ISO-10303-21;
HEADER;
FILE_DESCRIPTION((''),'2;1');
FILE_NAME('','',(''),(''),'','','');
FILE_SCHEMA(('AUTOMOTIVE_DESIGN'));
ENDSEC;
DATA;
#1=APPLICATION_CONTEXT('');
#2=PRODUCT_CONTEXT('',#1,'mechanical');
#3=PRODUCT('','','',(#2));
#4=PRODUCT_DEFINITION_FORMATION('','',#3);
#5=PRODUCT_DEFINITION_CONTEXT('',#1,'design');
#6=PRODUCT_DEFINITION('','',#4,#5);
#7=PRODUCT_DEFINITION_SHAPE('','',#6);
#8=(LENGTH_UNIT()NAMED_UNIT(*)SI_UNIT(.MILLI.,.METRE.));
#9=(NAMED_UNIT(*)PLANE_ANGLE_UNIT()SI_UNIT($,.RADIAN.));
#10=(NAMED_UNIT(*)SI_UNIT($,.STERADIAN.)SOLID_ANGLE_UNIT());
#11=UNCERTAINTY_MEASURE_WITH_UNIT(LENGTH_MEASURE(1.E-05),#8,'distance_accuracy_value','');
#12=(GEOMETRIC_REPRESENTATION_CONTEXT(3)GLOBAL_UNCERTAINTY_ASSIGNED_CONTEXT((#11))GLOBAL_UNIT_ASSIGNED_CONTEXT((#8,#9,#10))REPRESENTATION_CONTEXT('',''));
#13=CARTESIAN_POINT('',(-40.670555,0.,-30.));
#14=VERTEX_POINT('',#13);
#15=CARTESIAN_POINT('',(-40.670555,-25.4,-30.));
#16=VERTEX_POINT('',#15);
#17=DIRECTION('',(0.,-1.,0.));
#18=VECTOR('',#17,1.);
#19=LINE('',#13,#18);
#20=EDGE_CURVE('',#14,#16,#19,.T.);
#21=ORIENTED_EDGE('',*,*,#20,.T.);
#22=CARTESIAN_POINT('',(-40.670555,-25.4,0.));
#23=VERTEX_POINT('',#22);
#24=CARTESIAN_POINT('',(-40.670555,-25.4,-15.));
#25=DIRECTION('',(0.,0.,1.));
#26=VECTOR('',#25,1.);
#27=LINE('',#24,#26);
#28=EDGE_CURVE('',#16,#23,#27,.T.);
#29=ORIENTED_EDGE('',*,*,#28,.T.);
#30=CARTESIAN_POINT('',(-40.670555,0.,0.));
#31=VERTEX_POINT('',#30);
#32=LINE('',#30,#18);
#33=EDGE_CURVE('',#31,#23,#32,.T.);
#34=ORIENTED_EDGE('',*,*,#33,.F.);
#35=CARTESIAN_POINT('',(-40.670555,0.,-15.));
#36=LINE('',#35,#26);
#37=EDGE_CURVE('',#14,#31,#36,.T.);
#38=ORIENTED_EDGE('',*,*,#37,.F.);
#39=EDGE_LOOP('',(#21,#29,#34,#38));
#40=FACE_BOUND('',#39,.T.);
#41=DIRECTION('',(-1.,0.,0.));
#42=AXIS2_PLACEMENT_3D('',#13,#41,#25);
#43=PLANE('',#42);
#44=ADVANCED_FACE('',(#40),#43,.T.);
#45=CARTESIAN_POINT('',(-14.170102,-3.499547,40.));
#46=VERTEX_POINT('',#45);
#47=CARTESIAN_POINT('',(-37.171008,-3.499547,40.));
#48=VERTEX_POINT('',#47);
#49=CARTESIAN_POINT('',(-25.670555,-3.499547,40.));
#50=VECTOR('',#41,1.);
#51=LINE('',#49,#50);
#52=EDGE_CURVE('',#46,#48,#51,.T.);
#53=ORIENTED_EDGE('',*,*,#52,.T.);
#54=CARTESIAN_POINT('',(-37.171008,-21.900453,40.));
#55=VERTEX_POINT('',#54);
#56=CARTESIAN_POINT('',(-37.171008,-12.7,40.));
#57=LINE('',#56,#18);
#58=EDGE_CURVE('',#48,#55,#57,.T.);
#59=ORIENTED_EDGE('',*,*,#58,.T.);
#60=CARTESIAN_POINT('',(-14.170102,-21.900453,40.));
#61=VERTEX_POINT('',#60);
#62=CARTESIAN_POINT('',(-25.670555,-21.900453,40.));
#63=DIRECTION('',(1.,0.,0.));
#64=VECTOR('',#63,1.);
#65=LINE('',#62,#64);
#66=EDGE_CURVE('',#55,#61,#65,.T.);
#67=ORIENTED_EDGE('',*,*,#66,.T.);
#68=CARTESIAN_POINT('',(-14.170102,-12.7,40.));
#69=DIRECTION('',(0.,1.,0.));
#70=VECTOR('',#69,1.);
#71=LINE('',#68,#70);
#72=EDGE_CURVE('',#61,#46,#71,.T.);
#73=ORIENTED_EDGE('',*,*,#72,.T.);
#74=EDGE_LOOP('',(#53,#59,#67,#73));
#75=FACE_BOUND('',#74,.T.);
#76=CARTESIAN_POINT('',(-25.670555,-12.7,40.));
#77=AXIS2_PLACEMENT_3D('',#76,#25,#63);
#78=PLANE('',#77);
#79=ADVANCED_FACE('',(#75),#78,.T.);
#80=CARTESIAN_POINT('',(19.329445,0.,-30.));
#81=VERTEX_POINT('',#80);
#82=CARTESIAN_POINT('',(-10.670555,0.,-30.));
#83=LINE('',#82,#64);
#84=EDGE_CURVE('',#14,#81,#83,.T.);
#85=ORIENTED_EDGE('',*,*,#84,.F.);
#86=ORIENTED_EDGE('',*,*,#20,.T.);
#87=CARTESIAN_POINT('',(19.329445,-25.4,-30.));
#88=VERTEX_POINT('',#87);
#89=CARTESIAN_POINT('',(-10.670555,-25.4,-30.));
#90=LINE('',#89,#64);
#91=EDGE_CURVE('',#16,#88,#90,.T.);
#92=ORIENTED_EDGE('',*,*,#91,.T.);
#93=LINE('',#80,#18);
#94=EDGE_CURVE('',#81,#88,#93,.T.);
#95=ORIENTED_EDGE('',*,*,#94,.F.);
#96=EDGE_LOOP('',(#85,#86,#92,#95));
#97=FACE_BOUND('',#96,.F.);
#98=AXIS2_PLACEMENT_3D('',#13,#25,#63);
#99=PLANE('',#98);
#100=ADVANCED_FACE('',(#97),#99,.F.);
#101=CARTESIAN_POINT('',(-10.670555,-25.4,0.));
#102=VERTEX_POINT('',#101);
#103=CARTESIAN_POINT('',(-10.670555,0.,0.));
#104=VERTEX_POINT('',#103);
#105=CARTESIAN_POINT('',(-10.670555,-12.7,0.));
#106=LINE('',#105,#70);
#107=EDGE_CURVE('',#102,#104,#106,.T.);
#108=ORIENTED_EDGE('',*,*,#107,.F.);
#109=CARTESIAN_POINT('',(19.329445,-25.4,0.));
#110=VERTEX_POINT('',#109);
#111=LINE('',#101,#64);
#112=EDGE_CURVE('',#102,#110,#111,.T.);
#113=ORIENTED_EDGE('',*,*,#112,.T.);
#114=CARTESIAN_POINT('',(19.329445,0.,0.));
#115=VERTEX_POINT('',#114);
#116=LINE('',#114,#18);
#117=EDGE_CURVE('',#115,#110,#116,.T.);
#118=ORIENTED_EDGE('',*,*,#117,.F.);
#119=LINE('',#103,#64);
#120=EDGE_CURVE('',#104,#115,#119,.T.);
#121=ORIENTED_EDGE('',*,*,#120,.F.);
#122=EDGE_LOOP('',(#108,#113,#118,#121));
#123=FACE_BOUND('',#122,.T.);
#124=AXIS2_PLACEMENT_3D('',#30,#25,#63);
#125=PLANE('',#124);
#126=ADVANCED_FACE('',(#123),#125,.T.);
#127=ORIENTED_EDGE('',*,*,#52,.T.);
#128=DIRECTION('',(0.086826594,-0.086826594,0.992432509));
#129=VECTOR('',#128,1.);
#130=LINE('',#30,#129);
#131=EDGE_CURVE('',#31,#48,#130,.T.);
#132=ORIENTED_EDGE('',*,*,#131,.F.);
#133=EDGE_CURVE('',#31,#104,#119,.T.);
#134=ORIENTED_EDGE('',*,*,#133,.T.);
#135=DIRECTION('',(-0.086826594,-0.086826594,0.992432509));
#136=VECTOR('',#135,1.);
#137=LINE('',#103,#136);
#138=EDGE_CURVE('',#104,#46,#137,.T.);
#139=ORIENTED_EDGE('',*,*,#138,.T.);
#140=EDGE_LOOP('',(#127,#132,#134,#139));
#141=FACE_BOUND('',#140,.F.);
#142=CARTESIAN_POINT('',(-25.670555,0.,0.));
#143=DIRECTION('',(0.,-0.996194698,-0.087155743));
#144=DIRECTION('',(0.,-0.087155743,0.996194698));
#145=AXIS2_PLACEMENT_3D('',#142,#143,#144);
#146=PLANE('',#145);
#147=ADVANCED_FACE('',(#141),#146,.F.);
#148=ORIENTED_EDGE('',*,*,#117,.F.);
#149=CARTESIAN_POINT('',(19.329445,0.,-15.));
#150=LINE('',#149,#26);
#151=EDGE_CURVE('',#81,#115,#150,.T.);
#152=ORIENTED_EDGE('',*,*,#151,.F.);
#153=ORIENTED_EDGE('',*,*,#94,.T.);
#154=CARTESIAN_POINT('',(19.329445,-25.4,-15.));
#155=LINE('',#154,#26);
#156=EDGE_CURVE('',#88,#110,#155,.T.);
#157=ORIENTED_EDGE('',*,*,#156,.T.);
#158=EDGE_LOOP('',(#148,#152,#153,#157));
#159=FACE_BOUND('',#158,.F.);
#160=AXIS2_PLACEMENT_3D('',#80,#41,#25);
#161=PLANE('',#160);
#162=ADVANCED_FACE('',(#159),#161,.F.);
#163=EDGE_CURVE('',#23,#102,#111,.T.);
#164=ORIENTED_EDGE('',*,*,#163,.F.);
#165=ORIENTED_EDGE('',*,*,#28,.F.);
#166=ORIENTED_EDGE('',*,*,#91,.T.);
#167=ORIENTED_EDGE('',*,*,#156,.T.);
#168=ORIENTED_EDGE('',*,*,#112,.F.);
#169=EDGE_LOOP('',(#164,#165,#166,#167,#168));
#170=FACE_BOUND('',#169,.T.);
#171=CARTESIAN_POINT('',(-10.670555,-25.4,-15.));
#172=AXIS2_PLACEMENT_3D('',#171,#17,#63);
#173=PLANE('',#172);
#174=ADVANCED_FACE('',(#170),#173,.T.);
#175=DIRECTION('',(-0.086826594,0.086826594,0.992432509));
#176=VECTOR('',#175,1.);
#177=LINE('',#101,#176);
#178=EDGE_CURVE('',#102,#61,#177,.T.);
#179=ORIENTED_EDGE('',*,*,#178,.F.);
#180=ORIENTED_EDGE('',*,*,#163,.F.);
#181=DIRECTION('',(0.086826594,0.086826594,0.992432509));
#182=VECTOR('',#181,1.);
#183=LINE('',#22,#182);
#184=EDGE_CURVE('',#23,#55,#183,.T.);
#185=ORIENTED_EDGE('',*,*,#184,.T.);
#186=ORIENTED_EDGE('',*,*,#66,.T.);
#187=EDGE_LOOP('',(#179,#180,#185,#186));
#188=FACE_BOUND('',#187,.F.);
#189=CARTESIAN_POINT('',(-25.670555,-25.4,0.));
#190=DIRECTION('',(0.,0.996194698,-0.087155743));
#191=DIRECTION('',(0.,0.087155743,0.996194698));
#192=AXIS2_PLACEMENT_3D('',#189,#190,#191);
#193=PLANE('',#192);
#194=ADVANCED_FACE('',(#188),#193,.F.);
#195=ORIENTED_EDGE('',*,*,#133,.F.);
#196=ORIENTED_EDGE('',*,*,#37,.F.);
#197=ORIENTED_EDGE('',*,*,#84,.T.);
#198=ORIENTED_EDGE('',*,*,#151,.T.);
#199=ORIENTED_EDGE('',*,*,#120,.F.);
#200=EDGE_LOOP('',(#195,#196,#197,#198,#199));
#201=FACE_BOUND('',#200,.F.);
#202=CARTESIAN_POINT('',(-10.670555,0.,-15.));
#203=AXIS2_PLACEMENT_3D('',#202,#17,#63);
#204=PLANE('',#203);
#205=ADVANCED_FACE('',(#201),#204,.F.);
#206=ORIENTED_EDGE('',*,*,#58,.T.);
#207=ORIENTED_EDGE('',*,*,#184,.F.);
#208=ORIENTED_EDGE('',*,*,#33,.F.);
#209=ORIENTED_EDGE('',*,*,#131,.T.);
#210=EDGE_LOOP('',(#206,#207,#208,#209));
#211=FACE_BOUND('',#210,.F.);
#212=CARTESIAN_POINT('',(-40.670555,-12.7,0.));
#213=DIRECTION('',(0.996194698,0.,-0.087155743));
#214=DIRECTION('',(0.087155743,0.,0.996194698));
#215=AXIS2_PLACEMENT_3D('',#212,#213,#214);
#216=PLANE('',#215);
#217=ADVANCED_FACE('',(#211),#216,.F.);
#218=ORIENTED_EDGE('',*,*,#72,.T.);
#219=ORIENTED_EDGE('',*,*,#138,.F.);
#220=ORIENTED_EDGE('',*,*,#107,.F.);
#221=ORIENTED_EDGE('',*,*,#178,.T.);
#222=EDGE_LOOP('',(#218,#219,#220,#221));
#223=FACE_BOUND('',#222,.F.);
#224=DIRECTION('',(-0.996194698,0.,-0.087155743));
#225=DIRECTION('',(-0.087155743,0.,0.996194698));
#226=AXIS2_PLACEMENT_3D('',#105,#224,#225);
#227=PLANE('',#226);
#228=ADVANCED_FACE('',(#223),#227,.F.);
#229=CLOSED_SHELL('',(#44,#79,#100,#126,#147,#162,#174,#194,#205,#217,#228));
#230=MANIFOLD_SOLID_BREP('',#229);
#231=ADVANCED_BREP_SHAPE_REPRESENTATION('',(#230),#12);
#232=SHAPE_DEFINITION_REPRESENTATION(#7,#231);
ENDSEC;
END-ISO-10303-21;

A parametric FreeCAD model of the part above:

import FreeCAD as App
import Part
import Sketcher

V = App.Vector


def add_polygon(sketch, points):
    """Adds a closed chain of lines whose ends are joined by coincident constraints."""
    first, n = sketch.GeometryCount, len(points)
    for a, b in zip(points, points[1:] + points[:1]):
        sketch.addGeometry(Part.LineSegment(App.Vector(*a, 0), App.Vector(*b, 0)), False)
    for i in range(n):
        sketch.addConstraint(Sketcher.Constraint("Coincident", first + i, 2, first + (i + 1) % n, 1))

doc = App.newDocument("Part")
body = doc.addObject("PartDesign::Body", "Body")

# Sketch on XZ plane
sketch1 = doc.addObject("Sketcher::SketchObject", "Sketch")
body.addObject(sketch1)
sketch1.AttachmentSupport = (doc.XZ_Plane, [""])
sketch1.MapMode = "FlatFace"
add_polygon(sketch1, [(-41, 0), (-41, -30), (19, -30), (19, 0)])  # lines 0-3
sketch1.addConstraint(Sketcher.Constraint("Vertical", 0))
sketch1.addConstraint(Sketcher.Constraint("Horizontal", 1))
sketch1.addConstraint(Sketcher.Constraint("Vertical", 2))
sketch1.addConstraint(Sketcher.Constraint("Horizontal", 3))
sketch1.addConstraint(Sketcher.Constraint("PointOnObject", 2, 2, -1))
sketch1.addConstraint(Sketcher.Constraint("DistanceX", 1, 1, 1, 2, 60.0))
sketch1.addConstraint(Sketcher.Constraint("DistanceY", 0, 2, 0, 1, 30.0))
sketch1.addConstraint(Sketcher.Constraint("DistanceX", 0, 2, -1, 1, 40.670555))
pad1 = doc.addObject("PartDesign::Pad", "Pad")
body.addObject(pad1)
pad1.Profile = sketch1
pad1.Length = 25.4

# Sketch on XY plane
sketch2 = doc.addObject("Sketcher::SketchObject", "Sketch001")
body.addObject(sketch2)
sketch2.AttachmentSupport = (doc.XY_Plane, [""])
sketch2.MapMode = "FlatFace"
add_polygon(sketch2, [(-41, 0), (-41, -25), (-11, -25), (-11, 0)])  # lines 0-3
sketch2.addConstraint(Sketcher.Constraint("Vertical", 0))
sketch2.addConstraint(Sketcher.Constraint("Horizontal", 1))
sketch2.addConstraint(Sketcher.Constraint("Vertical", 2))
sketch2.addConstraint(Sketcher.Constraint("Horizontal", 3))
sketch2.addConstraint(Sketcher.Constraint("PointOnObject", 2, 2, -1))
sketch2.addConstraint(Sketcher.Constraint("DistanceX", 1, 1, 1, 2, 30.0))
sketch2.addConstraint(Sketcher.Constraint("DistanceY", 0, 2, 0, 1, 25.4))
sketch2.addConstraint(Sketcher.Constraint("DistanceX", 0, 2, -1, 1, 40.670555))
pad2 = doc.addObject("PartDesign::Pad", "Pad001")
body.addObject(pad2)
pad2.Profile = sketch2
pad2.Length = 40
pad2.TaperAngle = -5

doc.recompute()
